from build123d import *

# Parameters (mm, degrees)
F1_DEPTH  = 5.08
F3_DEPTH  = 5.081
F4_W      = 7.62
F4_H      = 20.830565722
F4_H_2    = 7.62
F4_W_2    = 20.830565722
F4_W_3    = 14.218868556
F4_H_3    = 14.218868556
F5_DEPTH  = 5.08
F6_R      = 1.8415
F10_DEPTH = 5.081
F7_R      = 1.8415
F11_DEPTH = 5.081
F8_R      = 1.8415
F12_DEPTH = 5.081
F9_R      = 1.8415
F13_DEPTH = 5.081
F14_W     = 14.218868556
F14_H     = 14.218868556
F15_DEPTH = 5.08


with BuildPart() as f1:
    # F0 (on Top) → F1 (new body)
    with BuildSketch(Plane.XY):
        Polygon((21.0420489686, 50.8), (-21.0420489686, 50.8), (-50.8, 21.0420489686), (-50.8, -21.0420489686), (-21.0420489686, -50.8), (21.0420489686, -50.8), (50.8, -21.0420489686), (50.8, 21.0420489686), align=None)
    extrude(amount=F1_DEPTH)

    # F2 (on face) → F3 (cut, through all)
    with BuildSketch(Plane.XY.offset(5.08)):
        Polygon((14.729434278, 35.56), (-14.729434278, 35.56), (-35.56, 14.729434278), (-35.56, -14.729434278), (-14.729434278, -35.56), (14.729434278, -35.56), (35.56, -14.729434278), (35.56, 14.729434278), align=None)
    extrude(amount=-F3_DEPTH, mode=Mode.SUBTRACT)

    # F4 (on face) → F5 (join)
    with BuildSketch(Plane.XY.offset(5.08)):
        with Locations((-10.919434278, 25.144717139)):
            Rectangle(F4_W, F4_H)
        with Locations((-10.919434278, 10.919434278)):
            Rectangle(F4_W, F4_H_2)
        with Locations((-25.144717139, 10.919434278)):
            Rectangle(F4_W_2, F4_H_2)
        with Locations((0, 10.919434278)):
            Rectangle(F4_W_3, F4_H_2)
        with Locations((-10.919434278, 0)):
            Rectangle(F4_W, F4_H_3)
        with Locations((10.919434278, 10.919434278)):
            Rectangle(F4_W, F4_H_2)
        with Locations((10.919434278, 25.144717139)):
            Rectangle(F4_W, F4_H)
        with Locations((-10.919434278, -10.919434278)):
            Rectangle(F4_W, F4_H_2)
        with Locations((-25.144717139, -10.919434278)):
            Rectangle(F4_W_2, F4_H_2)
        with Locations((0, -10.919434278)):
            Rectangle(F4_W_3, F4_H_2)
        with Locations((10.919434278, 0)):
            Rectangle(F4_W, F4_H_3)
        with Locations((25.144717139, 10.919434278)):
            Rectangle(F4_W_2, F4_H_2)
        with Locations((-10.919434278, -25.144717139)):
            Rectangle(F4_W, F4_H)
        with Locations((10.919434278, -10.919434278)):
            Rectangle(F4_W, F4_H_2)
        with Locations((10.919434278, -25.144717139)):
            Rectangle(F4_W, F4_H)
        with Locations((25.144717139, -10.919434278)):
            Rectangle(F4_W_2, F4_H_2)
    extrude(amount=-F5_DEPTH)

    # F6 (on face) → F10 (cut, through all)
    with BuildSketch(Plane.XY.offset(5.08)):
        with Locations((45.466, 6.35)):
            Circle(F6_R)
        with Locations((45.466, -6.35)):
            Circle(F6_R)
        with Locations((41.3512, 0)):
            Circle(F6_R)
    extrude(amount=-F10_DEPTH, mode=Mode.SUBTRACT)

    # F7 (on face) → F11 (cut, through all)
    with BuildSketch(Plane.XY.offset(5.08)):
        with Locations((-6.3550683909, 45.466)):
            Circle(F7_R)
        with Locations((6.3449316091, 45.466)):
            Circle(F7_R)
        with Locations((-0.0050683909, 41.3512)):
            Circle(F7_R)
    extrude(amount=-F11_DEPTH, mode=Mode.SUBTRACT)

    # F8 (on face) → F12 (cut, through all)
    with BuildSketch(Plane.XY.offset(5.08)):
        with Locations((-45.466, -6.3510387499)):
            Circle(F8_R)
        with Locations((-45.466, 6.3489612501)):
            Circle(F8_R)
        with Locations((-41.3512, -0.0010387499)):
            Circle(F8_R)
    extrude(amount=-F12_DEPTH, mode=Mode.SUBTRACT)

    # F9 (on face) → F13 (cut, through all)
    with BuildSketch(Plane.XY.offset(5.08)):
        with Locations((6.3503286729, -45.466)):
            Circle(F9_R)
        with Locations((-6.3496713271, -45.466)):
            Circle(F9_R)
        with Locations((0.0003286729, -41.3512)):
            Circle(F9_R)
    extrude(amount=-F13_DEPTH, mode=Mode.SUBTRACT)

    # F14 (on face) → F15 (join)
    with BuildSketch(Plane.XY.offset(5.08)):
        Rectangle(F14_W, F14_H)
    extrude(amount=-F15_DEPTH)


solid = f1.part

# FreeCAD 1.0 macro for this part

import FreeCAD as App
import Part
import Sketcher
from FreeCAD import Vector
Q = App.Units.Quantity


def add_polygon(sketch, points):
    """Adds a closed chain of lines whose ends are joined by coincident constraints."""
    first, n = sketch.GeometryCount, len(points)
    for a, b in zip(points, points[1:] + points[:1]):
        sketch.addGeometry(Part.LineSegment(App.Vector(*a, 0), App.Vector(*b, 0)), False)
    for i in range(n):
        sketch.addConstraint(Sketcher.Constraint("Coincident", first + i, 2, first + (i + 1) % n, 1))

doc = App.newDocument("Part")
body = doc.addObject("PartDesign::Body", "Body")

sketch1 = body.newObject("Sketcher::SketchObject", "Sketch")
sketch1.AttachmentSupport = (doc.getObject("XY_Plane"), [""])
sketch1.MapMode = "FlatFace"
add_polygon(sketch1, [(21, 51), (-21, 51), (-51, 21), (-51, -21), (-21, -51), (21, -51), (51, -21), (51, 21)])
sketch1.addConstraint(Sketcher.Constraint("Horizontal", 0))
sketch1.addConstraint(Sketcher.Constraint("Vertical", 2))
sketch1.addConstraint(Sketcher.Constraint("Horizontal", 4))
sketch1.addConstraint(Sketcher.Constraint("Vertical", 6))
sketch1.addConstraint(Sketcher.Constraint("Symmetric", 0, 2, 4, 2, -1, 1))
sketch1.addConstraint(Sketcher.Constraint("Symmetric", 1, 2, 5, 2, -1, 1))
sketch1.addConstraint(Sketcher.Constraint("Perpendicular", 1, 3))
sketch1.addConstraint(Sketcher.Constraint("Perpendicular", 5, 7))
sketch1.addConstraint(Sketcher.Constraint("Horizontal", 2, 2, 5, 2))
sketch1.addConstraint(Sketcher.Constraint("Horizontal", 1, 2, 6, 2))
sketch1.addConstraint(Sketcher.Constraint("Vertical", 0, 2, 3, 2))
sketch1.addConstraint(Sketcher.Constraint("Equal", 4, 2))
sketch1.addConstraint(Sketcher.Constraint("DistanceY", -1, 1, 0, 2, Q("2 in")))
sketch1.addConstraint(Sketcher.Constraint("DistanceX", 0, 2, 0, 1, 42.084098))
pad1 = body.newObject("PartDesign::Pad", "Pad")
pad1.Profile = sketch1
pad1.Length = Q("0.2 in")

sketch2 = body.newObject("Sketcher::SketchObject", "Sketch001")
sketch2.AttachmentSupport = (doc.getObject("XY_Plane"), [""])
sketch2.MapMode = "FlatFace"
sketch2.AttachmentOffset = App.Placement(Vector(0, 0, 0.2 * 25.4), App.Rotation())
add_polygon(sketch2, [(15, 36), (-15, 36), (-36, 15), (-36, -15), (-15, -36), (15, -36), (36, -15), (36, 15)])
sketch2.addConstraint(Sketcher.Constraint("Horizontal", 0))
sketch2.addConstraint(Sketcher.Constraint("Vertical", 2))
sketch2.addConstraint(Sketcher.Constraint("Horizontal", 4))
sketch2.addConstraint(Sketcher.Constraint("Vertical", 6))
sketch2.addConstraint(Sketcher.Constraint("Symmetric", 0, 2, 4, 2, -1, 1))
sketch2.addConstraint(Sketcher.Constraint("Symmetric", 1, 2, 5, 2, -1, 1))
sketch2.addConstraint(Sketcher.Constraint("Perpendicular", 1, 3))
sketch2.addConstraint(Sketcher.Constraint("Perpendicular", 5, 7))
sketch2.addConstraint(Sketcher.Constraint("Horizontal", 2, 2, 5, 2))
sketch2.addConstraint(Sketcher.Constraint("Horizontal", 1, 2, 6, 2))
sketch2.addConstraint(Sketcher.Constraint("Vertical", 0, 2, 3, 2))
sketch2.addConstraint(Sketcher.Constraint("Equal", 4, 2))
sketch2.addConstraint(Sketcher.Constraint("DistanceY", -1, 1, 0, 2, Q("1.4 in")))
sketch2.addConstraint(Sketcher.Constraint("DistanceX", 0, 2, 0, 1, 29.458869))
pocket1 = body.newObject("PartDesign::Pocket", "Pocket")
pocket1.Profile = sketch2
pocket1.Type = "ThroughAll"

sketch3 = body.newObject("Sketcher::SketchObject", "Sketch002")
sketch3.AttachmentSupport = (doc.getObject("XY_Plane"), [""])
sketch3.MapMode = "FlatFace"
sketch3.AttachmentOffset = App.Placement(Vector(0, 0, 0.2 * 25.4), App.Rotation())
add_polygon(sketch3, [(-7, -15), (7, -15), (7, -36), (15, -36), (15, -15), (36, -15), (36, -7), (15, -7), (15, 7), (36, 7), (36, 15), (15, 15), (15, 36), (7, 36), (7, 15), (-7, 15), (-7, 36), (-15, 36), (-15, 15), (-36, 15), (-36, 7), (-15, 7), (-15, -7), (-36, -7), (-36, -15), (-15, -15), (-15, -36), (-7, -36)])
add_polygon(sketch3, [(7, -7), (-7, -7), (-7, 7), (7, 7)])
sketch3.addConstraint(Sketcher.Constraint("Horizontal", 0))
sketch3.addConstraint(Sketcher.Constraint("Vertical", 1))
sketch3.addConstraint(Sketcher.Constraint("Horizontal", 2))
sketch3.addConstraint(Sketcher.Constraint("Vertical", 3))
sketch3.addConstraint(Sketcher.Constraint("Horizontal", 4))
sketch3.addConstraint(Sketcher.Constraint("Vertical", 5))
sketch3.addConstraint(Sketcher.Constraint("Horizontal", 6))
sketch3.addConstraint(Sketcher.Constraint("Vertical", 7))
sketch3.addConstraint(Sketcher.Constraint("Horizontal", 8))
sketch3.addConstraint(Sketcher.Constraint("Vertical", 9))
sketch3.addConstraint(Sketcher.Constraint("Horizontal", 10))
sketch3.addConstraint(Sketcher.Constraint("Vertical", 11))
sketch3.addConstraint(Sketcher.Constraint("Horizontal", 12))
sketch3.addConstraint(Sketcher.Constraint("Vertical", 13))
sketch3.addConstraint(Sketcher.Constraint("Horizontal", 14))
sketch3.addConstraint(Sketcher.Constraint("Vertical", 15))
sketch3.addConstraint(Sketcher.Constraint("Horizontal", 16))
sketch3.addConstraint(Sketcher.Constraint("Vertical", 17))
sketch3.addConstraint(Sketcher.Constraint("Horizontal", 18))
sketch3.addConstraint(Sketcher.Constraint("Vertical", 19))
sketch3.addConstraint(Sketcher.Constraint("Horizontal", 20))
sketch3.addConstraint(Sketcher.Constraint("Vertical", 21))
sketch3.addConstraint(Sketcher.Constraint("Horizontal", 22))
sketch3.addConstraint(Sketcher.Constraint("Vertical", 23))
sketch3.addConstraint(Sketcher.Constraint("Horizontal", 24))
sketch3.addConstraint(Sketcher.Constraint("Vertical", 25))
sketch3.addConstraint(Sketcher.Constraint("Horizontal", 26))
sketch3.addConstraint(Sketcher.Constraint("Vertical", 27))
sketch3.addConstraint(Sketcher.Constraint("Horizontal", 28))
sketch3.addConstraint(Sketcher.Constraint("Vertical", 29))
sketch3.addConstraint(Sketcher.Constraint("Horizontal", 30))
sketch3.addConstraint(Sketcher.Constraint("Vertical", 31))
sketch3.addConstraint(Sketcher.Constraint("Symmetric", 0, 2, 14, 2, -1, 1))
sketch3.addConstraint(Sketcher.Constraint("Symmetric", 2, 2, 16, 2, -1, 1))
sketch3.addConstraint(Sketcher.Constraint("Symmetric", 4, 2, 18, 2, -1, 1))
sketch3.addConstraint(Sketcher.Constraint("Symmetric", 6, 2, 20, 2, -1, 1))
sketch3.addConstraint(Sketcher.Constraint("Symmetric", 8, 2, 22, 2, -1, 1))
sketch3.addConstraint(Sketcher.Constraint("Symmetric", 10, 2, 24, 2, -1, 1))
sketch3.addConstraint(Sketcher.Constraint("Symmetric", 12, 2, 26, 2, -1, 1))
sketch3.addConstraint(Sketcher.Constraint("Symmetric", 28, 2, 30, 2, -1, 1))
sketch3.addConstraint(Sketcher.Constraint("Symmetric", 12, 2, 15, 2, -2))
sketch3.addConstraint(Sketcher.Constraint("Symmetric", 10, 2, 17, 2, -2))
sketch3.addConstraint(Sketcher.Constraint("Symmetric", 8, 2, 19, 2, -2))
sketch3.addConstraint(Sketcher.Constraint("Horizontal", 0, 2, 3, 2))
sketch3.addConstraint(Sketcher.Constraint("Horizontal", 22, 2, 28, 2))
sketch3.addConstraint(Sketcher.Constraint("Vertical", 3, 2, 6, 2))
sketch3.addConstraint(Sketcher.Constraint("Vertical", 27, 2, 28, 2))
sketch3.addConstraint(Sketcher.Constraint("Equal", 24, 1))
sketch3.addConstraint(Sketcher.Constraint("Equal", 26, 5))
sketch3.addConstraint(Sketcher.Constraint("Equal", 30, 7))
sketch3.addConstraint(Sketcher.Constraint("DistanceX", 2, 1, 2, 2, Q("0.3 in")))
sketch3.addConstraint(Sketcher.Constraint("DistanceY", 1, 2, -1, 1, Q("1.4 in")))
sketch3.addConstraint(Sketcher.Constraint("DistanceX", 0, 1, 0, 2, 14.218869))
pad2 = body.newObject("PartDesign::Pad", "Pad001")
pad2.Profile = sketch3
pad2.Length = Q("0.2 in")
pad2.Reversed = True

sketch4 = body.newObject("Sketcher::SketchObject", "Sketch003")
sketch4.AttachmentSupport = (doc.getObject("XY_Plane"), [""])
sketch4.MapMode = "FlatFace"
sketch4.AttachmentOffset = App.Placement(Vector(0, 0, 0.2 * 25.4), App.Rotation())
sketch4.addGeometry(Part.Circle(Vector(45.5, 6.3, 0), Vector(0, 0, 1), 1.8), False)
sketch4.addGeometry(Part.Circle(Vector(45.5, -6.3, 0), Vector(0, 0, 1), 1.8), False)
sketch4.addGeometry(Part.Circle(Vector(41.4, 0, 0), Vector(0, 0, 1), 1.8), False)
sketch4.addConstraint(Sketcher.Constraint("Equal", 0, 1))
sketch4.addConstraint(Sketcher.Constraint("Equal", 1, 2))
sketch4.addConstraint(Sketcher.Constraint("Symmetric", 0, 3, 1, 3, -1))
sketch4.addConstraint(Sketcher.Constraint("PointOnObject", 2, 3, -1))
sketch4.addConstraint(Sketcher.Constraint("Diameter", 0, Q("0.145 in")))
sketch4.addConstraint(Sketcher.Constraint("DistanceY", 1, 3, 0, 3, Q("0.5 in")))
sketch4.addConstraint(Sketcher.Constraint("DistanceX", -1, 1, 0, 3, Q("1.79 in")))
sketch4.addConstraint(Sketcher.Constraint("DistanceX", -1, 1, 2, 3, Q("1.628 in")))
pocket2 = body.newObject("PartDesign::Pocket", "Pocket001")
pocket2.Profile = sketch4
pocket2.Type = "ThroughAll"

sketch5 = body.newObject("Sketcher::SketchObject", "Sketch004")
sketch5.AttachmentSupport = (doc.getObject("XY_Plane"), [""])
sketch5.MapMode = "FlatFace"
sketch5.AttachmentOffset = App.Placement(Vector(0, 0, 0.2 * 25.4), App.Rotation())
sketch5.addGeometry(Part.Circle(Vector(-6.4, 45.5, 0), Vector(0, 0, 1), 1.8), False)
sketch5.addGeometry(Part.Circle(Vector(6.3, 45.5, 0), Vector(0, 0, 1), 1.8), False)
sketch5.addGeometry(Part.Circle(Vector(0, 41.4, 0), Vector(0, 0, 1), 1.8), False)
sketch5.addConstraint(Sketcher.Constraint("Equal", 0, 1))
sketch5.addConstraint(Sketcher.Constraint("Equal", 1, 2))
sketch5.addConstraint(Sketcher.Constraint("Horizontal", 0, 3, 1, 3))
sketch5.addConstraint(Sketcher.Constraint("Diameter", 0, Q("0.145 in")))
sketch5.addConstraint(Sketcher.Constraint("DistanceX", 0, 3, 1, 3, Q("0.5 in")))
sketch5.addConstraint(Sketcher.Constraint("DistanceY", -1, 1, 0, 3, Q("1.79 in")))
sketch5.addConstraint(Sketcher.Constraint("DistanceX", 0, 3, 2, 3, Q("0.25 in")))
sketch5.addConstraint(Sketcher.Constraint("DistanceY", -1, 1, 2, 3, Q("1.628 in")))
sketch5.addConstraint(Sketcher.Constraint("DistanceX", 0, 3, -1, 1, 6.355068))
pocket3 = body.newObject("PartDesign::Pocket", "Pocket002")
pocket3.Profile = sketch5
pocket3.Type = "ThroughAll"

sketch6 = body.newObject("Sketcher::SketchObject", "Sketch005")
sketch6.AttachmentSupport = (doc.getObject("XY_Plane"), [""])
sketch6.MapMode = "FlatFace"
sketch6.AttachmentOffset = App.Placement(Vector(0, 0, 0.2 * 25.4), App.Rotation())
sketch6.addGeometry(Part.Circle(Vector(-45.5, -6.4, 0), Vector(0, 0, 1), 1.8), False)
sketch6.addGeometry(Part.Circle(Vector(-45.5, 6.3, 0), Vector(0, 0, 1), 1.8), False)
sketch6.addGeometry(Part.Circle(Vector(-41.4, 0, 0), Vector(0, 0, 1), 1.8), False)
sketch6.addConstraint(Sketcher.Constraint("Equal", 0, 1))
sketch6.addConstraint(Sketcher.Constraint("Equal", 1, 2))
sketch6.addConstraint(Sketcher.Constraint("Vertical", 0, 3, 1, 3))
sketch6.addConstraint(Sketcher.Constraint("Diameter", 0, Q("0.145 in")))
sketch6.addConstraint(Sketcher.Constraint("DistanceY", 0, 3, 1, 3, Q("0.5 in")))
sketch6.addConstraint(Sketcher.Constraint("DistanceX", 0, 3, -1, 1, Q("1.79 in")))
sketch6.addConstraint(Sketcher.Constraint("DistanceY", 0, 3, 2, 3, Q("0.25 in")))
sketch6.addConstraint(Sketcher.Constraint("DistanceX", 2, 3, -1, 1, Q("1.628 in")))
sketch6.addConstraint(Sketcher.Constraint("DistanceY", 0, 3, -1, 1, 6.351039))
pocket4 = body.newObject("PartDesign::Pocket", "Pocket003")
pocket4.Profile = sketch6
pocket4.Type = "ThroughAll"

sketch7 = body.newObject("Sketcher::SketchObject", "Sketch006")
sketch7.AttachmentSupport = (doc.getObject("XY_Plane"), [""])
sketch7.MapMode = "FlatFace"
sketch7.AttachmentOffset = App.Placement(Vector(0, 0, 0.2 * 25.4), App.Rotation())
sketch7.addGeometry(Part.Circle(Vector(6.4, -45.5, 0), Vector(0, 0, 1), 1.8), False)
sketch7.addGeometry(Part.Circle(Vector(-6.3, -45.5, 0), Vector(0, 0, 1), 1.8), False)
sketch7.addGeometry(Part.Circle(Vector(0, -41.4, 0), Vector(0, 0, 1), 1.8), False)
sketch7.addConstraint(Sketcher.Constraint("Equal", 0, 1))
sketch7.addConstraint(Sketcher.Constraint("Equal", 1, 2))
sketch7.addConstraint(Sketcher.Constraint("Horizontal", 0, 3, 1, 3))
sketch7.addConstraint(Sketcher.Constraint("Diameter", 0, Q("0.145 in")))
sketch7.addConstraint(Sketcher.Constraint("DistanceX", 1, 3, 0, 3, Q("0.5 in")))
sketch7.addConstraint(Sketcher.Constraint("DistanceY", 0, 3, -1, 1, Q("1.79 in")))
sketch7.addConstraint(Sketcher.Constraint("DistanceX", 2, 3, 0, 3, Q("0.25 in")))
sketch7.addConstraint(Sketcher.Constraint("DistanceY", 2, 3, -1, 1, Q("1.628 in")))
sketch7.addConstraint(Sketcher.Constraint("DistanceX", -1, 1, 0, 3, 6.350329))
pocket5 = body.newObject("PartDesign::Pocket", "Pocket004")
pocket5.Profile = sketch7
pocket5.Type = "ThroughAll"

sketch8 = body.newObject("Sketcher::SketchObject", "Sketch007")
sketch8.AttachmentSupport = (doc.getObject("XY_Plane"), [""])
sketch8.MapMode = "FlatFace"
sketch8.AttachmentOffset = App.Placement(Vector(0, 0, 0.2 * 25.4), App.Rotation())
add_polygon(sketch8, [(-7, 7), (-7, -7), (7, -7), (7, 7)])
sketch8.addConstraint(Sketcher.Constraint("Vertical", 0))
sketch8.addConstraint(Sketcher.Constraint("Horizontal", 1))
sketch8.addConstraint(Sketcher.Constraint("Vertical", 2))
sketch8.addConstraint(Sketcher.Constraint("Horizontal", 3))
sketch8.addConstraint(Sketcher.Constraint("Symmetric", 0, 2, 2, 2, -1, 1))
sketch8.addConstraint(Sketcher.Constraint("Equal", 3, 0))
sketch8.addConstraint(Sketcher.Constraint("DistanceX", 1, 1, 1, 2, 14.218869))
pad3 = body.newObject("PartDesign::Pad", "Pad002")
pad3.Profile = sketch8
pad3.Length = Q("0.2 in")
pad3.Reversed = True

doc.recompute()
